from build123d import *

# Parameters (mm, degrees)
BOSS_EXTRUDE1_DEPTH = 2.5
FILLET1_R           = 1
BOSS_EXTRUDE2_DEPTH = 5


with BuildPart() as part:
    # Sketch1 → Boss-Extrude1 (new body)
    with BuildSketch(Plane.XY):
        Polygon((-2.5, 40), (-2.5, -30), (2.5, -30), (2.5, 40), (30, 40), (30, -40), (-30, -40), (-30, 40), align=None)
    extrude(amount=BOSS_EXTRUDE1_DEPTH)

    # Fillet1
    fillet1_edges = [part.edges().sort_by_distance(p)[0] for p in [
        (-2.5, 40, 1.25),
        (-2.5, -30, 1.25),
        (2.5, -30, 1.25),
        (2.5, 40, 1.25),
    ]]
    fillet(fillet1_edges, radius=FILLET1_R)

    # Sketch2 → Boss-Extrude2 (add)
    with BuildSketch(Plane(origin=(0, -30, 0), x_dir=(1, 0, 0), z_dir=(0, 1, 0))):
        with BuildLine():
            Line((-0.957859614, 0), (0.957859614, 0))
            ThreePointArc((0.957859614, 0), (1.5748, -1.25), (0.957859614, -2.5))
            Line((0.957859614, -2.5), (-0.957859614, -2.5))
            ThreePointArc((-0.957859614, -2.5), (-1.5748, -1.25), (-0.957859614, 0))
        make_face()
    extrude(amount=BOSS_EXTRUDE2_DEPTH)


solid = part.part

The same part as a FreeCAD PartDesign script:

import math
import FreeCAD as App
import Part
import Sketcher
from FreeCAD import Vector
Q = App.Units.Quantity


def edges_at(feature, points):
    """Names of the edges that pass closest to the given points."""
    edges = feature.Shape.Edges
    near = lambda p: min(range(len(edges)), key=lambda i: edges[i].distToShape(Part.Vertex(*p))[0])
    return sorted({f"Edge{near(p) + 1}" for p in points})


def add_polygon(sketch, points):
    """Adds a closed chain of lines whose ends are joined by coincident constraints."""
    first, n = sketch.GeometryCount, len(points)
    for a, b in zip(points, points[1:] + points[:1]):
        sketch.addGeometry(Part.LineSegment(App.Vector(*a, 0), App.Vector(*b, 0)), False)
    for i in range(n):
        sketch.addConstraint(Sketcher.Constraint("Coincident", first + i, 2, first + (i + 1) % n, 1))

doc = App.newDocument("Part")
body = doc.addObject("PartDesign::Body", "Body")

sketch1 = doc.addObject("Sketcher::SketchObject", "Sketch")
body.addObject(sketch1)
sketch1.AttachmentSupport = (doc.XY_Plane, [""])
sketch1.MapMode = "FlatFace"
add_polygon(sketch1, [(-2, -30), (-2, 40), (-30, 40), (-30, -40), (30, -40), (30, 40), (2, 40), (2, -30)])
sketch1.addConstraint([
    Sketcher.Constraint("Vertical", 0),
    Sketcher.Constraint("Horizontal", 1),
    Sketcher.Constraint("Vertical", 2),
    Sketcher.Constraint("Horizontal", 3),
    Sketcher.Constraint("Vertical", 4),
    Sketcher.Constraint("Horizontal", 5),
    Sketcher.Constraint("Vertical", 6),
    Sketcher.Constraint("Horizontal", 7),
    Sketcher.Constraint("Symmetric", 1, 2, 3, 2, -1, 1),
    Sketcher.Constraint("Symmetric", 0, 2, 5, 2, -2),
    Sketcher.Constraint("DistanceX", 3, 1, 3, 2, Q("60 mm")),
    Sketcher.Constraint("DistanceX", 7, 2, 7, 1, Q("5 mm")),
    Sketcher.Constraint("DistanceY", 0, 1, 0, 2, Q("70 mm")),
    Sketcher.Constraint("DistanceY", 2, 2, 2, 1, Q("80 mm")),
])
pad1 = doc.addObject("PartDesign::Pad", "Pad")
body.addObject(pad1)
pad1.Profile = sketch1
pad1.Length = 2.5
doc.recompute()

fillet = doc.addObject("PartDesign::Fillet", "Fillet")
body.addObject(fillet)
fillet.Base = (pad1, edges_at(pad1, [
    (-2.5, 40, 1.25),
    (-2.5, -30, 1.25),
    (2.5, -30, 1.25),
    (2.5, 40, 1.25),
]))
fillet.Radius = 1

sketch2 = doc.addObject("Sketcher::SketchObject", "Sketch001")
body.addObject(sketch2)
sketch2.AttachmentSupport = (doc.XZ_Plane, [""])
sketch2.MapMode = "FlatFace"
sketch2.AttachmentOffset = App.Placement(Vector(0, 0, 30), App.Rotation())
sketch2.addGeometry([
    Part.LineSegment(Vector(1, 0, 0), Vector(-1, 0, 0)),
    Part.ArcOfCircle(Part.Circle(Vector(0, 1.2, 0), Vector(0, 0, 1), 1.6), math.radians(127), math.radians(233)),
    Part.LineSegment(Vector(-1, 2.5, 0), Vector(1, 2.5, 0)),
    Part.ArcOfCircle(Part.Circle(Vector(0, 1.2, 0), Vector(0, 0, 1), 1.6), math.radians(-53), math.radians(53)),
], False)
sketch2.addConstraint([
    Sketcher.Constraint("Coincident", 0, 2, 1, 2),
    Sketcher.Constraint("Coincident", 1, 1, 2, 1),
    Sketcher.Constraint("Coincident", 2, 2, 3, 2),
    Sketcher.Constraint("Coincident", 3, 1, 0, 1),
    Sketcher.Constraint("Horizontal", 0),
    Sketcher.Constraint("Horizontal", 2),
    Sketcher.Constraint("Coincident", 3, 3, 1, 3),
    Sketcher.Constraint("Equal", 1, 3),
    Sketcher.Constraint("Symmetric", 0, 2, 3, 1, -1, 1),
    Sketcher.Constraint("Vertical", 0, 2, 1, 1),
    Sketcher.Constraint("DistanceY", -1, 1, 1, 1, Q("2.5 mm")),
    Sketcher.Constraint("Radius", 1, Q("1.5748 mm")),
])
pad2 = doc.addObject("PartDesign::Pad", "Pad001")
body.addObject(pad2)
pad2.Profile = sketch2
pad2.Length = 5
pad2.Reversed = True

doc.recompute()
